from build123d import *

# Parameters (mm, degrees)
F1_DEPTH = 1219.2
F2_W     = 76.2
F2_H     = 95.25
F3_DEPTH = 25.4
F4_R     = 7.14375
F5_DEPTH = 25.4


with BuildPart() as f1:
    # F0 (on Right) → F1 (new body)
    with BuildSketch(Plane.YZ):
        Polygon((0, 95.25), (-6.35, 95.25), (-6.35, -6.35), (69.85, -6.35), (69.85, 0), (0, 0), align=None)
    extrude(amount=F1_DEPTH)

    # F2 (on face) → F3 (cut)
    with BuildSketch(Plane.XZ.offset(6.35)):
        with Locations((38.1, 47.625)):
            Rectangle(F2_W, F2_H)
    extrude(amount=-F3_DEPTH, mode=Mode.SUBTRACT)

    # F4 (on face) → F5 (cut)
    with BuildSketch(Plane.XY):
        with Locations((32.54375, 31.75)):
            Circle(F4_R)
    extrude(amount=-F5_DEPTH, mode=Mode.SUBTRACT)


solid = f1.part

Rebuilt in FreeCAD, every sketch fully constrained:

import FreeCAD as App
import Part
import Sketcher
Q = App.Units.Quantity


def add_polygon(sketch, points):
    """Adds a closed chain of lines whose ends are joined by coincident constraints."""
    first, n = sketch.GeometryCount, len(points)
    for a, b in zip(points, points[1:] + points[:1]):
        sketch.addGeometry(Part.LineSegment(App.Vector(*a, 0), App.Vector(*b, 0)), False)
    for i in range(n):
        sketch.addConstraint(Sketcher.Constraint("Coincident", first + i, 2, first + (i + 1) % n, 1))

doc = App.newDocument("Part")
body = doc.addObject("PartDesign::Body", "Body")

# Sketch on YZ plane
sketch1 = doc.addObject("Sketcher::SketchObject", "Sketch")
body.addObject(sketch1)
sketch1.AttachmentSupport = (doc.YZ_Plane, [""])
sketch1.MapMode = "FlatFace"
add_polygon(sketch1, [(0, 95.25), (-6.35, 95.25), (-6.35, -6.35), (69.85, -6.35), (69.85, 0), (0, 0)])  # lines 0-5
sketch1.addConstraint(Sketcher.Constraint("Horizontal", 0))
sketch1.addConstraint(Sketcher.Constraint("Vertical", 1))
sketch1.addConstraint(Sketcher.Constraint("Horizontal", 2))
sketch1.addConstraint(Sketcher.Constraint("Vertical", 3))
sketch1.addConstraint(Sketcher.Constraint("Horizontal", 4))
sketch1.addConstraint(Sketcher.Constraint("Vertical", 5))
sketch1.addConstraint(Sketcher.Constraint("Coincident", 4, 2, -1, 1))
sketch1.addConstraint(Sketcher.Constraint("Equal", 0, 3))
sketch1.addConstraint(Sketcher.Constraint("DistanceX", 2, 1, 2, 2, Q("3 in")))
sketch1.addConstraint(Sketcher.Constraint("DistanceY", 1, 2, 1, 1, Q("4 in")))
sketch1.addConstraint(Sketcher.Constraint("DistanceX", 0, 2, 0, 1, Q("0.25 in")))
pad1 = doc.addObject("PartDesign::Pad", "Pad")
body.addObject(pad1)
pad1.Profile = sketch1
pad1.Length = Q("48 in")

# Sketch on XZ plane
sketch2 = doc.addObject("Sketcher::SketchObject", "Sketch001")
body.addObject(sketch2)
sketch2.AttachmentSupport = (doc.XZ_Plane, [""])
sketch2.MapMode = "FlatFace"
sketch2.AttachmentOffset = App.Placement(App.Vector(0, 0, 0.25 * 25.4), App.Rotation())
add_polygon(sketch2, [(0, 95.25), (0, 0), (76.2, 0), (76.2, 95.25)])  # lines 0-3
sketch2.addConstraint(Sketcher.Constraint("Vertical", 0))
sketch2.addConstraint(Sketcher.Constraint("Horizontal", 1))
sketch2.addConstraint(Sketcher.Constraint("Vertical", 2))
sketch2.addConstraint(Sketcher.Constraint("Horizontal", 3))
sketch2.addConstraint(Sketcher.Constraint("Coincident", 0, 2, -1, 1))
sketch2.addConstraint(Sketcher.Constraint("DistanceX", 1, 1, 1, 2, Q("3 in")))
sketch2.addConstraint(Sketcher.Constraint("DistanceY", 0, 2, 0, 1, Q("3.75 in")))
pocket1 = doc.addObject("PartDesign::Pocket", "Pocket")
body.addObject(pocket1)
pocket1.Profile = sketch2
pocket1.Length = Q("1 in")

# Sketch on XY plane
sketch3 = doc.addObject("Sketcher::SketchObject", "Sketch002")
body.addObject(sketch3)
sketch3.AttachmentSupport = (doc.XY_Plane, [""])
sketch3.MapMode = "FlatFace"
sketch3.addGeometry(Part.Circle(App.Vector(32.54375, 31.75, 0), App.Vector(0, 0, 1), 7.14375), False)
sketch3.addConstraint(Sketcher.Constraint("Diameter", 0, Q("0.5625 in")))
sketch3.addConstraint(Sketcher.Constraint("DistanceY", -1, 1, 0, 3, Q("1.25 in")))
sketch3.addConstraint(Sketcher.Constraint("DistanceX", -1, 1, 0, 3, Q("1.28125 in")))
pocket2 = doc.addObject("PartDesign::Pocket", "Pocket001")
body.addObject(pocket2)
pocket2.Profile = sketch3
pocket2.Length = Q("1 in")

doc.recompute()
